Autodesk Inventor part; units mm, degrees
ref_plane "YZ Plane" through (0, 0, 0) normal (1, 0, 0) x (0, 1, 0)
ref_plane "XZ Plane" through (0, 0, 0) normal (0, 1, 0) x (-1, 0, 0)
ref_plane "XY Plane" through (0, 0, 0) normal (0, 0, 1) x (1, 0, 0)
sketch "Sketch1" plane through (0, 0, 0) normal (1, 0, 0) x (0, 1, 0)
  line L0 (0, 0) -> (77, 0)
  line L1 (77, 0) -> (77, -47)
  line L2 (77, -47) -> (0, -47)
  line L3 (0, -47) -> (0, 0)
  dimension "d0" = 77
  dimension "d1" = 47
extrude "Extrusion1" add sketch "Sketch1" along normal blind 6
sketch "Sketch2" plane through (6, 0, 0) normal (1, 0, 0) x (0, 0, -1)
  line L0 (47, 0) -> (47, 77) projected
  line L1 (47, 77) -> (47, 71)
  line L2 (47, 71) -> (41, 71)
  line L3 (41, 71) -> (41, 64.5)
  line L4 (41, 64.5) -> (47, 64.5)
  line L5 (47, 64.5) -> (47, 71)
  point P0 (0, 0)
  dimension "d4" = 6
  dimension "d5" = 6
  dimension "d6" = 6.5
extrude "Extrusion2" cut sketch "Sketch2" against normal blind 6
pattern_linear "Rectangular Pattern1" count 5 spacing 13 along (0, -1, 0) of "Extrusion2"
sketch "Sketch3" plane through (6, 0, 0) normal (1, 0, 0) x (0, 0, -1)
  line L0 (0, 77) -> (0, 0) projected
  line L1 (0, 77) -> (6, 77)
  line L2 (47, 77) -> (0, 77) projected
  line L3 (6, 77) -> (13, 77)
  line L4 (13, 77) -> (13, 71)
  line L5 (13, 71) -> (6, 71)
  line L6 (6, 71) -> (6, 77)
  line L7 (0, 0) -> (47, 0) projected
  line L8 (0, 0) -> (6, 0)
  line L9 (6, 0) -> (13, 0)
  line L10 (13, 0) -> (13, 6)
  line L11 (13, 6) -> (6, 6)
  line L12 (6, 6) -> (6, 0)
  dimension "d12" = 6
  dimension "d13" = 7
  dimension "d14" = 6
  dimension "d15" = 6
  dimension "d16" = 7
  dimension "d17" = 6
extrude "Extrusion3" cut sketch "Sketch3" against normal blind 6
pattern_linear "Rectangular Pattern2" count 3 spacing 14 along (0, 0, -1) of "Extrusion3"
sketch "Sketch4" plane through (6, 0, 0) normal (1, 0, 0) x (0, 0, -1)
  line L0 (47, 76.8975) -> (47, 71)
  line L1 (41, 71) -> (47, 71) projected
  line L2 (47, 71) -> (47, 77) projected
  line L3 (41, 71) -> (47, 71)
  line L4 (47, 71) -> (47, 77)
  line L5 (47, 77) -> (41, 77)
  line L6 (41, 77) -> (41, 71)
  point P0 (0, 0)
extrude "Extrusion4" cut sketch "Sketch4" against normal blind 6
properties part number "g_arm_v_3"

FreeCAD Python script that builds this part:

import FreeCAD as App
import Part
import Sketcher


def add_polygon(sketch, points):
    """Adds a closed chain of lines whose ends are joined by coincident constraints."""
    first, n = sketch.GeometryCount, len(points)
    for a, b in zip(points, points[1:] + points[:1]):
        sketch.addGeometry(Part.LineSegment(App.Vector(*a, 0), App.Vector(*b, 0)), False)
    for i in range(n):
        sketch.addConstraint(Sketcher.Constraint("Coincident", first + i, 2, first + (i + 1) % n, 1))

doc = App.newDocument("Part")
params = doc.addObject("Spreadsheet::Sheet", "Params")
for row, (alias, value) in enumerate([
    ("sketch1_width", "77 mm"),
    ("sketch1_height", "47 mm"),
    ("pad1_length", "6 mm"),
    ("sketch2_height", "6 mm"),
    ("sketch2_width", "6.5 mm"),
    ("pocket1_length", "6 mm"),
    ("linearpattern_pitch", "13 mm"),
    ("sketch3_width", "6 mm"),
    ("sketch3_height", "7 mm"),
    ("pocket2_length", "6 mm"),
    ("linearpattern2_pitch", "14 mm"),
    ("sketch4_width", "6 mm"),
    ("pocket3_length", "6 mm"),
], start=1):
    params.set(f"A{row}", alias)
    params.set(f"B{row}", "=" + value)
    params.setAlias(f"B{row}", alias)

body = doc.addObject("PartDesign::Body", "Body")
body.AllowCompound = True

# Sketch on YZ plane
sketch1 = body.newObject("Sketcher::SketchObject", "Sketch")
sketch1.AttachmentSupport = (doc.getObject("YZ_Plane"), [""])
sketch1.MapMode = "FlatFace"
add_polygon(sketch1, [(77, 0), (0, 0), (0, -47), (77, -47)])  # lines 0-3
sketch1.addConstraint([
    Sketcher.Constraint("Horizontal", 0),
    Sketcher.Constraint("Vertical", 1),
    Sketcher.Constraint("Horizontal", 2),
    Sketcher.Constraint("Vertical", 3),
    Sketcher.Constraint("Coincident", 0, 2, -1, 1),
    Sketcher.Constraint("DistanceX", 0, 2, 0, 1, 77.0),
    Sketcher.Constraint("DistanceY", 1, 2, 1, 1, 47.0),
])
sketch1.setExpression("Constraints[9]", "Params.sketch1_width")
sketch1.setExpression("Constraints[10]", "Params.sketch1_height")
pad1 = body.newObject("PartDesign::Pad", "Pad")
pad1.Profile = sketch1
pad1.setExpression("Length", "Params.pad1_length")

# Sketch on YZ plane
sketch2 = body.newObject("Sketcher::SketchObject", "Sketch001")
sketch2.AttachmentSupport = (doc.getObject("YZ_Plane"), [""])
sketch2.MapMode = "FlatFace"
sketch2.AttachmentOffset = App.Placement(App.Vector(0, 0, 6), App.Rotation())
add_polygon(sketch2, [(64.5, -41), (64.5, -47), (71, -47), (71, -41)])  # lines 0-3
sketch2.addConstraint([
    Sketcher.Constraint("Vertical", 0),
    Sketcher.Constraint("Horizontal", 1),
    Sketcher.Constraint("Vertical", 2),
    Sketcher.Constraint("Horizontal", 3),
    Sketcher.Constraint("DistanceY", 0, 2, 0, 1, 6.0),
    Sketcher.Constraint("DistanceX", 1, 1, 1, 2, 6.5),
    Sketcher.Constraint("DistanceY", 0, 2, -1, 1, 47.0),
    Sketcher.Constraint("DistanceX", -1, 1, 1, 2, 71.0),
])
sketch2.setExpression("Constraints[8]", "Params.sketch2_height")
sketch2.setExpression("Constraints[9]", "Params.sketch2_width")
pocket1 = body.newObject("PartDesign::Pocket", "Pocket")
pocket1.Profile = sketch2
pocket1.setExpression("Length", "Params.pocket1_length")
doc.recompute()

linearpattern = body.newObject("PartDesign::LinearPattern", "LinearPattern")
linearpattern.Originals = [pocket1]
linearpattern.Direction = (doc.getObject("Y_Axis"), [""])
linearpattern.Mode = "offset"
linearpattern.setExpression("Offset", "Params.linearpattern_pitch")
linearpattern.Occurrences = 5
linearpattern.Reversed = True
body.Tip = linearpattern

# Sketch on YZ plane
sketch3 = body.newObject("Sketcher::SketchObject", "Sketch002")
sketch3.AttachmentSupport = (doc.getObject("YZ_Plane"), [""])
sketch3.MapMode = "FlatFace"
sketch3.AttachmentOffset = App.Placement(App.Vector(0, 0, 6), App.Rotation())
add_polygon(sketch3, [(6, -6), (0, -6), (0, -13), (6, -13)])  # lines 0-3
add_polygon(sketch3, [(77, -13), (77, -6), (71, -6), (71, -13)])  # lines 4-7
sketch3.addConstraint([
    Sketcher.Constraint("Horizontal", 0),
    Sketcher.Constraint("Vertical", 1),
    Sketcher.Constraint("Horizontal", 2),
    Sketcher.Constraint("Vertical", 3),
    Sketcher.Constraint("Vertical", 4),
    Sketcher.Constraint("Horizontal", 5),
    Sketcher.Constraint("Vertical", 6),
    Sketcher.Constraint("Horizontal", 7),
    Sketcher.Constraint("PointOnObject", 0, 2, -2),
    Sketcher.Constraint("Horizontal", 3, 2, 4, 2),
    Sketcher.Constraint("Horizontal", 2, 2, 6, 2),
    Sketcher.Constraint("Equal", 2, 5),
    Sketcher.Constraint("DistanceX", 0, 2, 0, 1, 6.0),
    Sketcher.Constraint("DistanceY", 1, 2, 1, 1, 7.0),
    Sketcher.Constraint("DistanceY", 0, 2, -1, 1, 6.0),
    Sketcher.Constraint("DistanceX", -1, 1, 4, 2, 77.0),
])
sketch3.setExpression("Constraints[20]", "Params.sketch3_width")
sketch3.setExpression("Constraints[21]", "Params.sketch3_height")
pocket2 = body.newObject("PartDesign::Pocket", "Pocket001")
pocket2.Profile = sketch3
pocket2.setExpression("Length", "Params.pocket2_length")
doc.recompute()

linearpattern2 = body.newObject("PartDesign::LinearPattern", "LinearPattern001")
linearpattern2.Originals = [pocket2]
linearpattern2.Direction = (doc.getObject("Z_Axis"), [""])
linearpattern2.Mode = "offset"
linearpattern2.setExpression("Offset", "Params.linearpattern2_pitch")
linearpattern2.Occurrences = 3
linearpattern2.Reversed = True
body.Tip = linearpattern2

# Sketch on YZ plane
sketch4 = body.newObject("Sketcher::SketchObject", "Sketch003")
sketch4.AttachmentSupport = (doc.getObject("YZ_Plane"), [""])
sketch4.MapMode = "FlatFace"
sketch4.AttachmentOffset = App.Placement(App.Vector(0, 0, 6), App.Rotation())
add_polygon(sketch4, [(71, -47), (77, -47), (77, -41), (71, -41)])  # lines 0-3
sketch4.addConstraint([
    Sketcher.Constraint("Horizontal", 0),
    Sketcher.Constraint("Vertical", 1),
    Sketcher.Constraint("Horizontal", 2),
    Sketcher.Constraint("Vertical", 3),
    Sketcher.Constraint("Equal", 2, 1),
    Sketcher.Constraint("DistanceX", 0, 1, 0, 2, 6.0),
    Sketcher.Constraint("DistanceX", -1, 1, 0, 2, 77.0),
    Sketcher.Constraint("DistanceY", 0, 2, -1, 1, 47.0),
])
sketch4.setExpression("Constraints[9]", "Params.sketch4_width")
pocket3 = body.newObject("PartDesign::Pocket", "Pocket002")
pocket3.Profile = sketch4
pocket3.setExpression("Length", "Params.pocket3_length")

doc.recompute()
